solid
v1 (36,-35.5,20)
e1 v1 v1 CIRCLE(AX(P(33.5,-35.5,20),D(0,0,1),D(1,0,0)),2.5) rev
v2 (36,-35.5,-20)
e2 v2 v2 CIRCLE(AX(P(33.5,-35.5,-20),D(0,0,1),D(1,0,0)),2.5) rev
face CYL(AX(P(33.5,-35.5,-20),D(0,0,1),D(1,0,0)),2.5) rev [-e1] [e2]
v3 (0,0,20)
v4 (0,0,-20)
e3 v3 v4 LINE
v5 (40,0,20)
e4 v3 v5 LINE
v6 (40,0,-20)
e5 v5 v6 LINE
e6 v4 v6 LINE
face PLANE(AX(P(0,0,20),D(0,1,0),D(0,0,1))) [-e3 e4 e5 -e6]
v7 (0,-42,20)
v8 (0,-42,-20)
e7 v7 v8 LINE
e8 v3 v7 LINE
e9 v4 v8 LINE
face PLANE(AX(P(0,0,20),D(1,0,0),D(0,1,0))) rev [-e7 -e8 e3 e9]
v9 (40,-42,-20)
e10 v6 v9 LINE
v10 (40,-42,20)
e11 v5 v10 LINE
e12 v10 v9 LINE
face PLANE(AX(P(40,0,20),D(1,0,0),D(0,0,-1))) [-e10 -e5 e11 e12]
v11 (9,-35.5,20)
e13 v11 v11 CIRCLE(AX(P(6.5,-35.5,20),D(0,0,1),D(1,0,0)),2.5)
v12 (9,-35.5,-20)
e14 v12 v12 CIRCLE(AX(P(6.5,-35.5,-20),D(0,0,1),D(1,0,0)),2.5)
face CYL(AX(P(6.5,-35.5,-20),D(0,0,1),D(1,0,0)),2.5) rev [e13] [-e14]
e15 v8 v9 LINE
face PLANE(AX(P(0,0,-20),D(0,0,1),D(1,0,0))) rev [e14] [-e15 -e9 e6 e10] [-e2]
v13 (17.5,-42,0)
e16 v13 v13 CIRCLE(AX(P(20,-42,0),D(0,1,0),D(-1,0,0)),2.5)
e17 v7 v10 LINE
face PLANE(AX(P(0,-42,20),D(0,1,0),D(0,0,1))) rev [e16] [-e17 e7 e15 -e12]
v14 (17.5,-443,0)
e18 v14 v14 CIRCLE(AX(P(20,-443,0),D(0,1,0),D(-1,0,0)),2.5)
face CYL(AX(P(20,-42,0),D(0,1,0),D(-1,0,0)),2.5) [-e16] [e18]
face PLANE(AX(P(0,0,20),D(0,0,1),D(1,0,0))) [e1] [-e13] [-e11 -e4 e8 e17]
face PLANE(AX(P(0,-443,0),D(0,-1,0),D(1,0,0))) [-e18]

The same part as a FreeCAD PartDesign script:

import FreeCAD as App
import Part
import Sketcher

V = App.Vector
Q = App.Units.Quantity


def add_polygon(sketch, points):
    """Adds a closed chain of lines whose ends are joined by coincident constraints."""
    first, n = sketch.GeometryCount, len(points)
    for a, b in zip(points, points[1:] + points[:1]):
        sketch.addGeometry(Part.LineSegment(App.Vector(*a, 0), App.Vector(*b, 0)), False)
    for i in range(n):
        sketch.addConstraint(Sketcher.Constraint("Coincident", first + i, 2, first + (i + 1) % n, 1))

doc = App.newDocument("Part")
body = doc.addObject("PartDesign::Body", "Body")

sketch1 = body.newObject("Sketcher::SketchObject", "Sketch")
sketch1.AttachmentSupport = (doc.getObject("XY_Plane"), [""])
sketch1.MapMode = "FlatFace"
add_polygon(sketch1, [(40, -42), (40, 0), (0, 0), (0, -42)])
sketch1.addConstraint([
    Sketcher.Constraint("Vertical", 0),
    Sketcher.Constraint("Horizontal", 1),
    Sketcher.Constraint("Vertical", 2),
    Sketcher.Constraint("Horizontal", 3),
    Sketcher.Constraint("Coincident", 1, 2, -1, 1),
    Sketcher.Constraint("DistanceX", 1, 2, 1, 1, Q("40 mm")),
    Sketcher.Constraint("DistanceY", 0, 1, 0, 2, Q("42 mm")),
])
pad1 = body.newObject("PartDesign::Pad", "Pad")
pad1.Profile = sketch1
pad1.Length = 40
pad1.Midplane = True

sketch2 = body.newObject("Sketcher::SketchObject", "Sketch001")
sketch2.AttachmentSupport = (doc.getObject("XY_Plane"), [""])
sketch2.MapMode = "FlatFace"
add_polygon(sketch2, [(20, -42), (20, -443), (22.5, -443), (22.5, -42)])
sketch2.addGeometry(Part.LineSegment(V(20, -42, 0), V(20, -443, 0)), True)
sketch2.addConstraint([
    Sketcher.Constraint("Vertical", 0),
    Sketcher.Constraint("Horizontal", 1),
    Sketcher.Constraint("Vertical", 2),
    Sketcher.Constraint("Horizontal", 3),
    Sketcher.Constraint("Vertical", 4),
    Sketcher.Constraint("Coincident", 4, 1, 3, 2),
    Sketcher.Constraint("Horizontal", 1, 2, 4, 2),
    Sketcher.Constraint("DistanceY", 0, 2, 0, 1, Q("401 mm")),
    Sketcher.Constraint("DistanceX", 1, 1, 1, 2, Q("2.5 mm")),
    Sketcher.Constraint("DistanceX", -1, 1, 0, 2, Q("20 mm")),
    Sketcher.Constraint("DistanceY", 0, 2, -1, 1, Q("443 mm")),
])
revolution = body.newObject("PartDesign::Revolution", "Revolution")
revolution.Profile = sketch2
revolution.ReferenceAxis = (sketch2, ["Axis0"])
revolution.Angle = 360

sketch3 = body.newObject("Sketcher::SketchObject", "Sketch002")
sketch3.AttachmentSupport = (doc.getObject("XY_Plane"), [""])
sketch3.MapMode = "FlatFace"
sketch3.AttachmentOffset = App.Placement(V(0, 0, 20), App.Rotation())
sketch3.addGeometry([
    Part.Circle(V(6.5, -35.5, 0), V(0, 0, 1), 2.5),
    Part.Circle(V(33.5, -35.5, 0), V(0, 0, 1), 2.5),
], False)
sketch3.addConstraint([
    Sketcher.Constraint("Equal", 0, 1),
    Sketcher.Constraint("Horizontal", 0, 3, 1, 3),
    Sketcher.Constraint("Diameter", 0, Q("5 mm")),
    Sketcher.Constraint("DistanceX", 0, 3, 1, 3, Q("27 mm")),
    Sketcher.Constraint("DistanceX", -1, 1, 0, 3, Q("6.5 mm")),
    Sketcher.Constraint("DistanceY", 0, 3, -1, 1, Q("35.5 mm")),
])
pocket1 = body.newObject("PartDesign::Pocket", "Pocket")
pocket1.Profile = sketch3
pocket1.Type = "ThroughAll"

doc.recompute()
